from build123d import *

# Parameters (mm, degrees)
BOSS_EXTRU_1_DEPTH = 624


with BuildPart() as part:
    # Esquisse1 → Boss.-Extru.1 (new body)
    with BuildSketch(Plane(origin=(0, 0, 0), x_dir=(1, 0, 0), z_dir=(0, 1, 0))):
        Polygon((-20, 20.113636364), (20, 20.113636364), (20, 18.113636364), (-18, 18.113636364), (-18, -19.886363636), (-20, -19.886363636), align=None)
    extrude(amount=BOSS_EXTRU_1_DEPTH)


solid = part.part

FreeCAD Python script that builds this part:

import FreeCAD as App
import Part
import Sketcher

V = App.Vector
Q = App.Units.Quantity


def add_polygon(sketch, points):
    """Adds a closed chain of lines whose ends are joined by coincident constraints."""
    first, n = sketch.GeometryCount, len(points)
    for a, b in zip(points, points[1:] + points[:1]):
        sketch.addGeometry(Part.LineSegment(App.Vector(*a, 0), App.Vector(*b, 0)), False)
    for i in range(n):
        sketch.addConstraint(Sketcher.Constraint("Coincident", first + i, 2, first + (i + 1) % n, 1))

doc = App.newDocument("Part")
body = doc.addObject("PartDesign::Body", "Body")

# Sketch on XZ plane
sketch1 = doc.addObject("Sketcher::SketchObject", "Sketch")
body.addObject(sketch1)
sketch1.AttachmentSupport = (doc.XZ_Plane, [""])
sketch1.MapMode = "FlatFace"
add_polygon(sketch1, [(20, -20.113636), (-20, -20.113636), (-20, 19.886364), (-18, 19.886364), (-18, -18.113636), (20, -18.113636)])  # lines 0-5
sketch1.addConstraint([
    Sketcher.Constraint("Horizontal", 0),
    Sketcher.Constraint("Vertical", 1),
    Sketcher.Constraint("Horizontal", 2),
    Sketcher.Constraint("Vertical", 3),
    Sketcher.Constraint("Horizontal", 4),
    Sketcher.Constraint("Vertical", 5),
    Sketcher.Constraint("Equal", 0, 1),
    Sketcher.Constraint("Equal", 4, 3),
    Sketcher.Constraint("DistanceX", 0, 2, 0, 1, Q("40 mm")),
    Sketcher.Constraint("DistanceX", 2, 1, 2, 2, Q("2 mm")),
    Sketcher.Constraint("DistanceX", 0, 2, -1, 1, Q("20 mm")),
    Sketcher.Constraint("DistanceY", 0, 2, -1, 1, Q("20.113636 mm")),
])
pad1 = doc.addObject("PartDesign::Pad", "Pad")
body.addObject(pad1)
pad1.Profile = sketch1
pad1.Length = 624
pad1.Reversed = True

doc.recompute()
